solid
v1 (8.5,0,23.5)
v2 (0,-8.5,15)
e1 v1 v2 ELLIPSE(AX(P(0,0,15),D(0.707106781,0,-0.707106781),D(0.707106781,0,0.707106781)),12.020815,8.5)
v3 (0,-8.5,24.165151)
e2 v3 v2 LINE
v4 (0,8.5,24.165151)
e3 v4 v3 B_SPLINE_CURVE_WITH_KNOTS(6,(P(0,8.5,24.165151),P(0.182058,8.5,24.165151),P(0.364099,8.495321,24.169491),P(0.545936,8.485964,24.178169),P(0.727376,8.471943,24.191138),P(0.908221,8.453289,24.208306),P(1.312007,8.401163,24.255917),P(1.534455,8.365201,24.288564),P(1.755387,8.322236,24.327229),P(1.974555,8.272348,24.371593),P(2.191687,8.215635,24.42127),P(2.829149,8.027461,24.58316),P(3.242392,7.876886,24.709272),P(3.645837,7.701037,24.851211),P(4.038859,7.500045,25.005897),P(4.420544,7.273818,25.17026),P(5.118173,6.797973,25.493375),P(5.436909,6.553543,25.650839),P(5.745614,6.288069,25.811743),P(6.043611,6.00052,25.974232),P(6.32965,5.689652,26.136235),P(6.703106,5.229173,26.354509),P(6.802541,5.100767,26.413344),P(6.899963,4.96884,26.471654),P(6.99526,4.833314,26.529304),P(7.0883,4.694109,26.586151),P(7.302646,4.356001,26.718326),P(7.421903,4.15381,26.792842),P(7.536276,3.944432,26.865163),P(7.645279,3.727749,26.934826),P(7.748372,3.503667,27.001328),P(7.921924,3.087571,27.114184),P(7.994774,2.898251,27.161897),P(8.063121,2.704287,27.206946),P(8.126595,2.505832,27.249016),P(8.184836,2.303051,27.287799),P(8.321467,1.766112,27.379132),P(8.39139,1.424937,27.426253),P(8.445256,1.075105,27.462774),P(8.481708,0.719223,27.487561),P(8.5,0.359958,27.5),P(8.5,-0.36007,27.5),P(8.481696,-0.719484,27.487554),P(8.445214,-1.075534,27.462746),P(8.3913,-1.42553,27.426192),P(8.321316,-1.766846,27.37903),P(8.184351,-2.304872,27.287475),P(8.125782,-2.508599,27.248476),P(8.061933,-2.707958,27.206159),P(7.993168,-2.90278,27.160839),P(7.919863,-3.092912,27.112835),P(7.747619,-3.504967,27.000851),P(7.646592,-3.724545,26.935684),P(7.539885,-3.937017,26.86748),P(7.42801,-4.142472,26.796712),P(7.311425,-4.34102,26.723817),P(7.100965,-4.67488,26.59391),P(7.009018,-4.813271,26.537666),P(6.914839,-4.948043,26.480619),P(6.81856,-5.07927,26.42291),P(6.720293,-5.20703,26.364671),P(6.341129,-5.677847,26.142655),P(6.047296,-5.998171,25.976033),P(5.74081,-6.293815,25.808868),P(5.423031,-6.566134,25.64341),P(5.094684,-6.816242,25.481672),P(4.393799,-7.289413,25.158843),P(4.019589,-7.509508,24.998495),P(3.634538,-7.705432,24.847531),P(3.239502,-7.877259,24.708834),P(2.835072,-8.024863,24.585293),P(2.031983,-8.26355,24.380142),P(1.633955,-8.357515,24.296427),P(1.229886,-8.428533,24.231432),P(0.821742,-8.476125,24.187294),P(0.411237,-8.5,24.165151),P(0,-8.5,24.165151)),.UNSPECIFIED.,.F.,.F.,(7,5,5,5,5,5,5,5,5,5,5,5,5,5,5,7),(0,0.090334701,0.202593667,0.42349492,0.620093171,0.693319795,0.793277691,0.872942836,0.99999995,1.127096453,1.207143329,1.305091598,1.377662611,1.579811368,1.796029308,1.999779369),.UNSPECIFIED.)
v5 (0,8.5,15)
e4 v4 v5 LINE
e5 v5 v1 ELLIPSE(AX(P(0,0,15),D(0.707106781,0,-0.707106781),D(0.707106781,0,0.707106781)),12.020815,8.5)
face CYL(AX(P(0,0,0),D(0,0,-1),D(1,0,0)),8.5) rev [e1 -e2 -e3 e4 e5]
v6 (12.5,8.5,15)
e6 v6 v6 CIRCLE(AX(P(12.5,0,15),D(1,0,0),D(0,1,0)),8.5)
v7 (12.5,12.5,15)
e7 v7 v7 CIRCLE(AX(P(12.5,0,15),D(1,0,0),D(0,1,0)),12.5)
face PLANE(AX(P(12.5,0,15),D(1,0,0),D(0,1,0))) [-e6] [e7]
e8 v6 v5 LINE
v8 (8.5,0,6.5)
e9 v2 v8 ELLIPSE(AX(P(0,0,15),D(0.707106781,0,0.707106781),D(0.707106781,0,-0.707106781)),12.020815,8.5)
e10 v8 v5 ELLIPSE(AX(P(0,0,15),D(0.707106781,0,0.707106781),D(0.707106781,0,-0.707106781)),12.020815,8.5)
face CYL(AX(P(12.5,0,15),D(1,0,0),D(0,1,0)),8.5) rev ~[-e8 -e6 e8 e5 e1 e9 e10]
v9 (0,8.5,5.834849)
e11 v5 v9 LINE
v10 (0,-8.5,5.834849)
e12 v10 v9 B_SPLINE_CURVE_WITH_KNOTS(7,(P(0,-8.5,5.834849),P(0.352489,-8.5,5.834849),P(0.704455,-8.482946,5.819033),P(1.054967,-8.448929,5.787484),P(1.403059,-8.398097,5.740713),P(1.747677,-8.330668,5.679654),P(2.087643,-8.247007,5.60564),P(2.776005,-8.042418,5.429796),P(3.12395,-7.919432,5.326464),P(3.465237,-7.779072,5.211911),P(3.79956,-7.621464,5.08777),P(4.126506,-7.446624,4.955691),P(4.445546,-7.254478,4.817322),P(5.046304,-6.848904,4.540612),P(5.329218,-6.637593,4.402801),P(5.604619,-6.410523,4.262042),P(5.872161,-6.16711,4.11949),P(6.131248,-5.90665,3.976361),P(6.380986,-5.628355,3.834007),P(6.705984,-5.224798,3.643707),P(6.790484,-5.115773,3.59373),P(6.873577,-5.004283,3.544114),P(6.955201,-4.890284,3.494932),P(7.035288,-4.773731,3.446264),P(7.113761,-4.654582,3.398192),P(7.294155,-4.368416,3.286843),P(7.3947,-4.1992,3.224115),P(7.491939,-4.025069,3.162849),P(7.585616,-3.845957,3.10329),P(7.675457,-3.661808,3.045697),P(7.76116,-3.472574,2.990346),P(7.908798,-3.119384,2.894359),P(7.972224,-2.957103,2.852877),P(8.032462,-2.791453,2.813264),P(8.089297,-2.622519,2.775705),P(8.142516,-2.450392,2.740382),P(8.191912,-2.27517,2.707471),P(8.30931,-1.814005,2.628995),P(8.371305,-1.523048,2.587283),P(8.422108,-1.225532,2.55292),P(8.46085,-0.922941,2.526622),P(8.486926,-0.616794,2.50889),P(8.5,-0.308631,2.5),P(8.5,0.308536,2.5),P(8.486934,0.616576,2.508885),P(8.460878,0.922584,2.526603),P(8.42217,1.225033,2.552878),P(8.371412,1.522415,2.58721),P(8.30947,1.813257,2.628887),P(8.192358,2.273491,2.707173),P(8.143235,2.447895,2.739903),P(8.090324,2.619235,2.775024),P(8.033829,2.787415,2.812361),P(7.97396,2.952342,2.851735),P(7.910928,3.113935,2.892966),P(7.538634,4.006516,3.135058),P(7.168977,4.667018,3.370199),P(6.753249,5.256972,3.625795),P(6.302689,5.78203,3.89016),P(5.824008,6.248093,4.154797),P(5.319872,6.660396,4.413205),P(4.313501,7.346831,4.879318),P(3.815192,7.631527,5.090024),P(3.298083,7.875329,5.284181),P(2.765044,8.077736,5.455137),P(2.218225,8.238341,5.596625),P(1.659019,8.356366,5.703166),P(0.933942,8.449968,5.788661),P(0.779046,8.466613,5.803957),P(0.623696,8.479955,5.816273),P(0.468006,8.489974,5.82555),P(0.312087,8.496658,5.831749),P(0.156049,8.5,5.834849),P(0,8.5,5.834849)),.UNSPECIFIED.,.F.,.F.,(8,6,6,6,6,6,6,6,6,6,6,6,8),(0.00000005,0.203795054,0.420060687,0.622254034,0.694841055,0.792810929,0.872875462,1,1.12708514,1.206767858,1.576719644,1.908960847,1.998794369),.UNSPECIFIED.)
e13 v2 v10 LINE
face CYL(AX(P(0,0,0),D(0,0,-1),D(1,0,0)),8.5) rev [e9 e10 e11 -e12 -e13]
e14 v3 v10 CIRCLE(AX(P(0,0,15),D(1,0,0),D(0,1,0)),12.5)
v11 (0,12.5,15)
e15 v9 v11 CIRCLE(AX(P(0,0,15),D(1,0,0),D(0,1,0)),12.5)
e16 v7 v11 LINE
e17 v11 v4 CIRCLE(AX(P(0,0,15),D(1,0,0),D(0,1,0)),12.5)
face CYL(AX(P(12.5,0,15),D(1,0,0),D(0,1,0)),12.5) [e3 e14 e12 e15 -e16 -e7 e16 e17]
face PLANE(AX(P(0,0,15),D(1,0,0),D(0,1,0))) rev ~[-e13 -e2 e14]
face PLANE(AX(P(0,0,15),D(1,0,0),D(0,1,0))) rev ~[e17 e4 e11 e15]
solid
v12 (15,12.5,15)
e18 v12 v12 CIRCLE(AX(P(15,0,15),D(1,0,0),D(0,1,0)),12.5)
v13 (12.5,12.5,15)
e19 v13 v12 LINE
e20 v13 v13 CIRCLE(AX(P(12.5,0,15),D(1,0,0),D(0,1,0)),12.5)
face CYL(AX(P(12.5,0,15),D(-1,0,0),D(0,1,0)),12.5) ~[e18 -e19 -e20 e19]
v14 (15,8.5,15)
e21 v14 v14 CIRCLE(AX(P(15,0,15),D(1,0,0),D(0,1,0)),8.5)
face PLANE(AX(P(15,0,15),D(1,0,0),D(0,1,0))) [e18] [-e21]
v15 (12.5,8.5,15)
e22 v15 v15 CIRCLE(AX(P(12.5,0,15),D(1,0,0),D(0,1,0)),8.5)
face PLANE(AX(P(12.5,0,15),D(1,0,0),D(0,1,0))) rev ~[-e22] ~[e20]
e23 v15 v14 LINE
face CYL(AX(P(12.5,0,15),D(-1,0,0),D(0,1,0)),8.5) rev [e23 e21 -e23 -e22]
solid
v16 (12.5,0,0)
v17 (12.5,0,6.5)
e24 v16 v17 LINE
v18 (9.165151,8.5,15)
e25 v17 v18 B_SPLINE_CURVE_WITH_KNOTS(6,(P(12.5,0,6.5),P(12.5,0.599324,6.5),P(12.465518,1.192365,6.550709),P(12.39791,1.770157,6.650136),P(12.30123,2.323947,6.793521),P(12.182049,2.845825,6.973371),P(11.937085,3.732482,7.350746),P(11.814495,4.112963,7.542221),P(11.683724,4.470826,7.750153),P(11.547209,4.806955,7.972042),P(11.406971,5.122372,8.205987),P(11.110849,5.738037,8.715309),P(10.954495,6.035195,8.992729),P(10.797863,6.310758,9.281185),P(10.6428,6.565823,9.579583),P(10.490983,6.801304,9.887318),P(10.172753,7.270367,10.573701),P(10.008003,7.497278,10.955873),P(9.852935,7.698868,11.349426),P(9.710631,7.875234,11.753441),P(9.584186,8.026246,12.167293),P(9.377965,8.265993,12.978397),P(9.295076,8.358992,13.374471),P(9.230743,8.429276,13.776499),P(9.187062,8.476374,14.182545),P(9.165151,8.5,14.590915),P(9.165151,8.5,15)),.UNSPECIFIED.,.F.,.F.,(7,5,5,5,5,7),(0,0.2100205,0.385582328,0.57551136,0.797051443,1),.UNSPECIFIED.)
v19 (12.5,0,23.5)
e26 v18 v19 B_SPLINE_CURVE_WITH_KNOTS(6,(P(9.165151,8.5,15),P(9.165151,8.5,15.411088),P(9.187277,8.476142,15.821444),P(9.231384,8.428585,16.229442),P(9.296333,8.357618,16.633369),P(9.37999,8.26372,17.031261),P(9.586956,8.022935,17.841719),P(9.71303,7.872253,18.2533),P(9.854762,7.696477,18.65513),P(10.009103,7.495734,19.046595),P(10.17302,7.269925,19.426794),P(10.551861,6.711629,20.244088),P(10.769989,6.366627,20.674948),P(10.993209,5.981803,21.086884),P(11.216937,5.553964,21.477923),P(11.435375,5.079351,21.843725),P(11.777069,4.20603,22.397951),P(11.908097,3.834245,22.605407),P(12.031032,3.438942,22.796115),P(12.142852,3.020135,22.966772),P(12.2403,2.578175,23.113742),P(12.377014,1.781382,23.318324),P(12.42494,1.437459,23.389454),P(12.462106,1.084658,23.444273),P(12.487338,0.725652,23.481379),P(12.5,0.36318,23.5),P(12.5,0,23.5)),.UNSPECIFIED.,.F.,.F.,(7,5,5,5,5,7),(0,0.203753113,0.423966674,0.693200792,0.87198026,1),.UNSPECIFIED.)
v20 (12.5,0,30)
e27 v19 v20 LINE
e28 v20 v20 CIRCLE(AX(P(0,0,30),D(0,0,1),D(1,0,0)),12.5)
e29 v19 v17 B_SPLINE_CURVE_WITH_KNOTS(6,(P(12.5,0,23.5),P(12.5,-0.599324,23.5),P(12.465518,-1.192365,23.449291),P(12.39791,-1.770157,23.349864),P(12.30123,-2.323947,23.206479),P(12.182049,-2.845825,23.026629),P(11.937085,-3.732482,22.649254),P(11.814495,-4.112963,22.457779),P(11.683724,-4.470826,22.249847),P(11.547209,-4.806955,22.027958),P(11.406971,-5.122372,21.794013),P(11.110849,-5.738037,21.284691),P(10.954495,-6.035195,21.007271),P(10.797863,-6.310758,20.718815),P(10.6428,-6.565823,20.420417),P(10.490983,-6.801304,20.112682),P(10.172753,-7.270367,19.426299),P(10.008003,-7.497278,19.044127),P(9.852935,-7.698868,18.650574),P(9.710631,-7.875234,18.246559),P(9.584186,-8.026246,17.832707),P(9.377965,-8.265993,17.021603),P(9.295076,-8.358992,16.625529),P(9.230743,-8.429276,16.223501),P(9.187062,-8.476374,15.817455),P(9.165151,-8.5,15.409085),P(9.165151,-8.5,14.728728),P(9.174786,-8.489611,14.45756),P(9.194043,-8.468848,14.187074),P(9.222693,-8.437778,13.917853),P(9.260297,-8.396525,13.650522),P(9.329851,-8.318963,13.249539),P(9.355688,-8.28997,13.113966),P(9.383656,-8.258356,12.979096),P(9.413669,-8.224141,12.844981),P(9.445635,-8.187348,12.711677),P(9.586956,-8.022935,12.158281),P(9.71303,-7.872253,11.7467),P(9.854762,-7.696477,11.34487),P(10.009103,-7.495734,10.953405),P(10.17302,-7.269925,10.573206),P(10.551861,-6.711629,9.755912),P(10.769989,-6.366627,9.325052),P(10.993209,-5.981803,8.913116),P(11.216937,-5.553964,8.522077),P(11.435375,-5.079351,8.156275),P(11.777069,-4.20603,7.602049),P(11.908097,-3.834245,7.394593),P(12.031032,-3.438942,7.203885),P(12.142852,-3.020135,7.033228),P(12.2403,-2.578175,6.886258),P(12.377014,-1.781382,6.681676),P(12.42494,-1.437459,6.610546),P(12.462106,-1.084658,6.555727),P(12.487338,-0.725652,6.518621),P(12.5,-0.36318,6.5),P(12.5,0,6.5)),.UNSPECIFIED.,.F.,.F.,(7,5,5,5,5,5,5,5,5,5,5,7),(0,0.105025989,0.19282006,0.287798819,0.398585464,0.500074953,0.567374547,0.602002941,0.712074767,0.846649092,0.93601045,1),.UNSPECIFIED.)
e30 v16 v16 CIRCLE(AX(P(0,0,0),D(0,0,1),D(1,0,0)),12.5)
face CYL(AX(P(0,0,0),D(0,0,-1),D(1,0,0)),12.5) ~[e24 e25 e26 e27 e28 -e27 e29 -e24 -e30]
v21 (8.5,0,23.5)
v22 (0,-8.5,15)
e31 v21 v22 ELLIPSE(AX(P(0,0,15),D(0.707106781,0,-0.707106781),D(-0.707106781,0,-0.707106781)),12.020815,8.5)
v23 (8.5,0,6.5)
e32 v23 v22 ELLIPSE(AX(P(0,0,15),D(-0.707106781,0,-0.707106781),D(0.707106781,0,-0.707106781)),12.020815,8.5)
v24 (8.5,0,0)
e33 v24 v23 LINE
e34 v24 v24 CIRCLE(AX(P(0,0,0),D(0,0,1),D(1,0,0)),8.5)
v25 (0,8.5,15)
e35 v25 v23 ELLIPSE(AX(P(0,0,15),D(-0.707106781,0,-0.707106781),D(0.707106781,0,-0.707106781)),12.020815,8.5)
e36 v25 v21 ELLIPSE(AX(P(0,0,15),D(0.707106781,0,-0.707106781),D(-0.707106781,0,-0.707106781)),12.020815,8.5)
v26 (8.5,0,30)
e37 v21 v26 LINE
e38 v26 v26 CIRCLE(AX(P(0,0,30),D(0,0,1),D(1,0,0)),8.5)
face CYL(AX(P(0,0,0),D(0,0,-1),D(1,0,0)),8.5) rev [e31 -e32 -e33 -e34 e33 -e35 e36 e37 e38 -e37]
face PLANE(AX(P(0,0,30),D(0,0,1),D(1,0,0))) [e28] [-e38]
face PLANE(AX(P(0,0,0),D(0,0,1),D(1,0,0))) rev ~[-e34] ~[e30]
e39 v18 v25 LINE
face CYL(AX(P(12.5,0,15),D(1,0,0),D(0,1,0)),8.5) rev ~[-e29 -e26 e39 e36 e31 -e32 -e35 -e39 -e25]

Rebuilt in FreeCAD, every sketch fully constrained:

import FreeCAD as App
import Part
import Sketcher

doc = App.newDocument("Part")
body = doc.addObject("PartDesign::Body", "Body")

# Sketch on XY plane
sketch1 = doc.addObject("Sketcher::SketchObject", "Sketch")
body.addObject(sketch1)
sketch1.AttachmentSupport = (doc.XY_Plane, [""])
sketch1.MapMode = "FlatFace"
sketch1.addGeometry(Part.Circle(App.Vector(0, 0, 0), App.Vector(0, 0, 1), 12.5), False)
sketch1.addGeometry(Part.Circle(App.Vector(0, 0, 0), App.Vector(0, 0, 1), 8.5), False)
sketch1.addConstraint(Sketcher.Constraint("Coincident", 0, 3, -1, 1))
sketch1.addConstraint(Sketcher.Constraint("Coincident", 1, 3, -1, 1))
sketch1.addConstraint(Sketcher.Constraint("Diameter", 0, 25.0))
sketch1.addConstraint(Sketcher.Constraint("Diameter", 1, 17.0))
pad1 = doc.addObject("PartDesign::Pad", "Pad")
body.addObject(pad1)
pad1.Profile = sketch1
pad1.Length = 30

# Sketch on YZ plane
sketch2 = doc.addObject("Sketcher::SketchObject", "Sketch001")
body.addObject(sketch2)
sketch2.AttachmentSupport = (doc.YZ_Plane, [""])
sketch2.MapMode = "FlatFace"
sketch2.AttachmentOffset = App.Placement(App.Vector(0, 0, 12.5), App.Rotation())
sketch2.addGeometry(Part.Circle(App.Vector(0, 15, 0), App.Vector(0, 0, 1), 8.5), False)
sketch2.addConstraint(Sketcher.Constraint("PointOnObject", 0, 3, -2))
sketch2.addConstraint(Sketcher.Constraint("Diameter", 0, 17.0))
sketch2.addConstraint(Sketcher.Constraint("DistanceY", -1, 1, 0, 3, 15.0))
pocket1 = doc.addObject("PartDesign::Pocket", "Pocket")
body.addObject(pocket1)
pocket1.Profile = sketch2
pocket1.Length = 12.5
body2 = doc.addObject("PartDesign::Body", "Body001")

# Sketch on YZ plane
sketch3 = doc.addObject("Sketcher::SketchObject", "Sketch002")
body2.addObject(sketch3)
sketch3.AttachmentSupport = (doc.getObject("YZ_Plane001"), [""])
sketch3.MapMode = "FlatFace"
sketch3.AttachmentOffset = App.Placement(App.Vector(0, 0, 12.5), App.Rotation())
sketch3.addGeometry(Part.Circle(App.Vector(0, 15, 0), App.Vector(0, 0, 1), 12.5), False)
sketch3.addGeometry(Part.Circle(App.Vector(0, 15, 0), App.Vector(0, 0, 1), 8.5), False)
sketch3.addConstraint(Sketcher.Constraint("Coincident", 1, 3, 0, 3))
sketch3.addConstraint(Sketcher.Constraint("PointOnObject", 0, 3, -2))
sketch3.addConstraint(Sketcher.Constraint("Diameter", 0, 25.0))
sketch3.addConstraint(Sketcher.Constraint("Diameter", 1, 17.0))
sketch3.addConstraint(Sketcher.Constraint("DistanceY", -1, 1, 0, 3, 15.0))
pad2 = doc.addObject("PartDesign::Pad", "Pad001")
body2.addObject(pad2)
pad2.Profile = sketch3
pad2.Length = 12.5
pad2.Reversed = True

# Sketch on XY plane
sketch4 = doc.addObject("Sketcher::SketchObject", "Sketch003")
body2.addObject(sketch4)
sketch4.AttachmentSupport = (doc.getObject("XY_Plane001"), [""])
sketch4.MapMode = "FlatFace"
sketch4.addGeometry(Part.Circle(App.Vector(0, 0, 0), App.Vector(0, 0, 1), 8.5), False)
sketch4.addConstraint(Sketcher.Constraint("Coincident", 0, 3, -1, 1))
sketch4.addConstraint(Sketcher.Constraint("Diameter", 0, 17.0))
pocket2 = doc.addObject("PartDesign::Pocket", "Pocket001")
body2.addObject(pocket2)
pocket2.Profile = sketch4
pocket2.Length = 30
pocket2.Reversed = True
body3 = doc.addObject("PartDesign::Body", "Body002")

# Sketch on YZ plane
sketch5 = doc.addObject("Sketcher::SketchObject", "Sketch004")
body3.addObject(sketch5)
sketch5.AttachmentSupport = (doc.getObject("YZ_Plane002"), [""])
sketch5.MapMode = "FlatFace"
sketch5.AttachmentOffset = App.Placement(App.Vector(0, 0, 12.5), App.Rotation())
sketch5.addGeometry(Part.Circle(App.Vector(0, 15, 0), App.Vector(0, 0, 1), 12.5), False)
sketch5.addGeometry(Part.Circle(App.Vector(0, 15, 0), App.Vector(0, 0, 1), 8.5), False)
sketch5.addConstraint(Sketcher.Constraint("Coincident", 1, 3, 0, 3))
sketch5.addConstraint(Sketcher.Constraint("PointOnObject", 0, 3, -2))
sketch5.addConstraint(Sketcher.Constraint("Diameter", 0, 25.0))
sketch5.addConstraint(Sketcher.Constraint("Diameter", 1, 17.0))
sketch5.addConstraint(Sketcher.Constraint("DistanceY", -1, 1, 0, 3, 15.0))
pad3 = doc.addObject("PartDesign::Pad", "Pad002")
body3.addObject(pad3)
pad3.Profile = sketch5
pad3.Length = 2.5

doc.recompute()
